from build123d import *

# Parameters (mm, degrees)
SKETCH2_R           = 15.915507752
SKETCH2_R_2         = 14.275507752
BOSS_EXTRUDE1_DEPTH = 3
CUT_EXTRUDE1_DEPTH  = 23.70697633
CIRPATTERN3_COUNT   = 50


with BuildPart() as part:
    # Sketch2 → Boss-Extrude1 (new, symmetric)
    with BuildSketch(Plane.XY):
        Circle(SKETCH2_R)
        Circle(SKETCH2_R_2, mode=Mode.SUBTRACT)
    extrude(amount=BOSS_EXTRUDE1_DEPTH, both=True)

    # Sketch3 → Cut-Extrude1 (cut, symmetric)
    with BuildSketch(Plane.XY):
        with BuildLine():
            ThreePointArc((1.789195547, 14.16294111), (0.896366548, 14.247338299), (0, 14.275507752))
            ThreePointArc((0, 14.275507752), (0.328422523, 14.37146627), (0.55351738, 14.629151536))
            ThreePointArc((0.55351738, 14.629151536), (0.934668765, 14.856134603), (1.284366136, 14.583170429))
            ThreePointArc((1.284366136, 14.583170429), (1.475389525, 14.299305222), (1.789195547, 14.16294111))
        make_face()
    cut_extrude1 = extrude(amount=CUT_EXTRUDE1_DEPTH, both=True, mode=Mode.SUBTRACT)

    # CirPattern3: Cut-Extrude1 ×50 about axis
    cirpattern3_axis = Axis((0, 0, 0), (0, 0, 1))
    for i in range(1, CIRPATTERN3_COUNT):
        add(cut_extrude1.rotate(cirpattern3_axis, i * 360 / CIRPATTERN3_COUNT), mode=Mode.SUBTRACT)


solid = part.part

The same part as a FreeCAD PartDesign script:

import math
import FreeCAD as App
import Part
import Sketcher
Q = App.Units.Quantity

doc = App.newDocument("Part")
params = doc.addObject("Spreadsheet::Sheet", "Params")
for row, (alias, value) in enumerate([
    ("pad1_length", "6 mm"),
    ("sketch2_radius", "0.61 mm"),
    ("pocket1_length", "47.413953 mm"),
], start=1):
    params.set(f"A{row}", alias)
    params.set(f"B{row}", "=" + value)
    params.setAlias(f"B{row}", alias)

body = doc.addObject("PartDesign::Body", "Body")

sketch1 = body.newObject("Sketcher::SketchObject", "Sketch")
sketch1.AttachmentSupport = (doc.getObject("XY_Plane"), [""])
sketch1.MapMode = "FlatFace"
sketch1.addGeometry([
    Part.Circle(App.Vector(0, 0, 0), App.Vector(0, 0, 1), 16),
    Part.Circle(App.Vector(0, 0, 0), App.Vector(0, 0, 1), 14),
], False)
sketch1.addConstraint([
    Sketcher.Constraint("Coincident", 0, 3, -1, 1),
    Sketcher.Constraint("Coincident", 1, 3, -1, 1),
    Sketcher.Constraint("Diameter", 0, Q("31.831016 mm")),
    Sketcher.Constraint("Diameter", 1, Q("28.551016 mm")),
])
pad1 = body.newObject("PartDesign::Pad", "Pad")
pad1.Profile = sketch1
pad1.setExpression("Length", "Params.pad1_length")
pad1.Midplane = True

sketch2 = body.newObject("Sketcher::SketchObject", "Sketch001")
sketch2.AttachmentSupport = (doc.getObject("XY_Plane"), [""])
sketch2.MapMode = "FlatFace"
sketch2.addGeometry([
    Part.ArcOfCircle(Part.Circle(App.Vector(0, 0, 0), App.Vector(0, 0, 1), 14.28), math.radians(82.8), math.radians(90)),
    Part.ArcOfCircle(Part.Circle(App.Vector(1.87, 14.77, 0), App.Vector(0, 0, 1), 0.61), math.radians(-162), math.radians(-97)),
    Part.ArcOfCircle(Part.Circle(App.Vector(0.91, 14.46, 0), App.Vector(0, 0, 1), 0.39), math.radians(18), math.radians(155)),
    Part.ArcOfCircle(Part.Circle(App.Vector(0, 14.89, 0), App.Vector(0, 0, 1), 0.61), math.radians(-90), math.radians(-25)),
], False)
sketch2.addConstraint([
    Sketcher.Constraint("Tangent", 0, 1, 1, 2),
    Sketcher.Constraint("Tangent", 1, 1, 2, 1),
    Sketcher.Constraint("Tangent", 2, 2, 3, 2),
    Sketcher.Constraint("Tangent", 3, 1, 0, 2),
    Sketcher.Constraint("Coincident", 0, 3, -1, 1),
    Sketcher.Constraint("Equal", 1, 3),
    Sketcher.Constraint("PointOnObject", 3, 3, -2),
    Sketcher.Constraint("Radius", 1, Q("0.61 mm")),
    Sketcher.Constraint("DistanceX", -1, 1, 2, 3, Q("0.910001 mm")),
    Sketcher.Constraint("Radius", 2, Q("0.39286 mm")),
    Sketcher.Constraint("Radius", 0, Q("14.275508 mm")),
])
sketch2.setExpression("Constraints[7]", "Params.sketch2_radius")
pocket1 = body.newObject("PartDesign::Pocket", "Pocket")
pocket1.Profile = sketch2
pocket1.setExpression("Length", "Params.pocket1_length")
pocket1.Midplane = True
doc.recompute()

polarpattern = body.newObject("PartDesign::PolarPattern", "PolarPattern")
polarpattern.Originals = [pocket1]
polarpattern.Axis = (doc.getObject("Z_Axis"), [""])
polarpattern.Angle = 360
polarpattern.Occurrences = 50
body.Tip = polarpattern

doc.recompute()
